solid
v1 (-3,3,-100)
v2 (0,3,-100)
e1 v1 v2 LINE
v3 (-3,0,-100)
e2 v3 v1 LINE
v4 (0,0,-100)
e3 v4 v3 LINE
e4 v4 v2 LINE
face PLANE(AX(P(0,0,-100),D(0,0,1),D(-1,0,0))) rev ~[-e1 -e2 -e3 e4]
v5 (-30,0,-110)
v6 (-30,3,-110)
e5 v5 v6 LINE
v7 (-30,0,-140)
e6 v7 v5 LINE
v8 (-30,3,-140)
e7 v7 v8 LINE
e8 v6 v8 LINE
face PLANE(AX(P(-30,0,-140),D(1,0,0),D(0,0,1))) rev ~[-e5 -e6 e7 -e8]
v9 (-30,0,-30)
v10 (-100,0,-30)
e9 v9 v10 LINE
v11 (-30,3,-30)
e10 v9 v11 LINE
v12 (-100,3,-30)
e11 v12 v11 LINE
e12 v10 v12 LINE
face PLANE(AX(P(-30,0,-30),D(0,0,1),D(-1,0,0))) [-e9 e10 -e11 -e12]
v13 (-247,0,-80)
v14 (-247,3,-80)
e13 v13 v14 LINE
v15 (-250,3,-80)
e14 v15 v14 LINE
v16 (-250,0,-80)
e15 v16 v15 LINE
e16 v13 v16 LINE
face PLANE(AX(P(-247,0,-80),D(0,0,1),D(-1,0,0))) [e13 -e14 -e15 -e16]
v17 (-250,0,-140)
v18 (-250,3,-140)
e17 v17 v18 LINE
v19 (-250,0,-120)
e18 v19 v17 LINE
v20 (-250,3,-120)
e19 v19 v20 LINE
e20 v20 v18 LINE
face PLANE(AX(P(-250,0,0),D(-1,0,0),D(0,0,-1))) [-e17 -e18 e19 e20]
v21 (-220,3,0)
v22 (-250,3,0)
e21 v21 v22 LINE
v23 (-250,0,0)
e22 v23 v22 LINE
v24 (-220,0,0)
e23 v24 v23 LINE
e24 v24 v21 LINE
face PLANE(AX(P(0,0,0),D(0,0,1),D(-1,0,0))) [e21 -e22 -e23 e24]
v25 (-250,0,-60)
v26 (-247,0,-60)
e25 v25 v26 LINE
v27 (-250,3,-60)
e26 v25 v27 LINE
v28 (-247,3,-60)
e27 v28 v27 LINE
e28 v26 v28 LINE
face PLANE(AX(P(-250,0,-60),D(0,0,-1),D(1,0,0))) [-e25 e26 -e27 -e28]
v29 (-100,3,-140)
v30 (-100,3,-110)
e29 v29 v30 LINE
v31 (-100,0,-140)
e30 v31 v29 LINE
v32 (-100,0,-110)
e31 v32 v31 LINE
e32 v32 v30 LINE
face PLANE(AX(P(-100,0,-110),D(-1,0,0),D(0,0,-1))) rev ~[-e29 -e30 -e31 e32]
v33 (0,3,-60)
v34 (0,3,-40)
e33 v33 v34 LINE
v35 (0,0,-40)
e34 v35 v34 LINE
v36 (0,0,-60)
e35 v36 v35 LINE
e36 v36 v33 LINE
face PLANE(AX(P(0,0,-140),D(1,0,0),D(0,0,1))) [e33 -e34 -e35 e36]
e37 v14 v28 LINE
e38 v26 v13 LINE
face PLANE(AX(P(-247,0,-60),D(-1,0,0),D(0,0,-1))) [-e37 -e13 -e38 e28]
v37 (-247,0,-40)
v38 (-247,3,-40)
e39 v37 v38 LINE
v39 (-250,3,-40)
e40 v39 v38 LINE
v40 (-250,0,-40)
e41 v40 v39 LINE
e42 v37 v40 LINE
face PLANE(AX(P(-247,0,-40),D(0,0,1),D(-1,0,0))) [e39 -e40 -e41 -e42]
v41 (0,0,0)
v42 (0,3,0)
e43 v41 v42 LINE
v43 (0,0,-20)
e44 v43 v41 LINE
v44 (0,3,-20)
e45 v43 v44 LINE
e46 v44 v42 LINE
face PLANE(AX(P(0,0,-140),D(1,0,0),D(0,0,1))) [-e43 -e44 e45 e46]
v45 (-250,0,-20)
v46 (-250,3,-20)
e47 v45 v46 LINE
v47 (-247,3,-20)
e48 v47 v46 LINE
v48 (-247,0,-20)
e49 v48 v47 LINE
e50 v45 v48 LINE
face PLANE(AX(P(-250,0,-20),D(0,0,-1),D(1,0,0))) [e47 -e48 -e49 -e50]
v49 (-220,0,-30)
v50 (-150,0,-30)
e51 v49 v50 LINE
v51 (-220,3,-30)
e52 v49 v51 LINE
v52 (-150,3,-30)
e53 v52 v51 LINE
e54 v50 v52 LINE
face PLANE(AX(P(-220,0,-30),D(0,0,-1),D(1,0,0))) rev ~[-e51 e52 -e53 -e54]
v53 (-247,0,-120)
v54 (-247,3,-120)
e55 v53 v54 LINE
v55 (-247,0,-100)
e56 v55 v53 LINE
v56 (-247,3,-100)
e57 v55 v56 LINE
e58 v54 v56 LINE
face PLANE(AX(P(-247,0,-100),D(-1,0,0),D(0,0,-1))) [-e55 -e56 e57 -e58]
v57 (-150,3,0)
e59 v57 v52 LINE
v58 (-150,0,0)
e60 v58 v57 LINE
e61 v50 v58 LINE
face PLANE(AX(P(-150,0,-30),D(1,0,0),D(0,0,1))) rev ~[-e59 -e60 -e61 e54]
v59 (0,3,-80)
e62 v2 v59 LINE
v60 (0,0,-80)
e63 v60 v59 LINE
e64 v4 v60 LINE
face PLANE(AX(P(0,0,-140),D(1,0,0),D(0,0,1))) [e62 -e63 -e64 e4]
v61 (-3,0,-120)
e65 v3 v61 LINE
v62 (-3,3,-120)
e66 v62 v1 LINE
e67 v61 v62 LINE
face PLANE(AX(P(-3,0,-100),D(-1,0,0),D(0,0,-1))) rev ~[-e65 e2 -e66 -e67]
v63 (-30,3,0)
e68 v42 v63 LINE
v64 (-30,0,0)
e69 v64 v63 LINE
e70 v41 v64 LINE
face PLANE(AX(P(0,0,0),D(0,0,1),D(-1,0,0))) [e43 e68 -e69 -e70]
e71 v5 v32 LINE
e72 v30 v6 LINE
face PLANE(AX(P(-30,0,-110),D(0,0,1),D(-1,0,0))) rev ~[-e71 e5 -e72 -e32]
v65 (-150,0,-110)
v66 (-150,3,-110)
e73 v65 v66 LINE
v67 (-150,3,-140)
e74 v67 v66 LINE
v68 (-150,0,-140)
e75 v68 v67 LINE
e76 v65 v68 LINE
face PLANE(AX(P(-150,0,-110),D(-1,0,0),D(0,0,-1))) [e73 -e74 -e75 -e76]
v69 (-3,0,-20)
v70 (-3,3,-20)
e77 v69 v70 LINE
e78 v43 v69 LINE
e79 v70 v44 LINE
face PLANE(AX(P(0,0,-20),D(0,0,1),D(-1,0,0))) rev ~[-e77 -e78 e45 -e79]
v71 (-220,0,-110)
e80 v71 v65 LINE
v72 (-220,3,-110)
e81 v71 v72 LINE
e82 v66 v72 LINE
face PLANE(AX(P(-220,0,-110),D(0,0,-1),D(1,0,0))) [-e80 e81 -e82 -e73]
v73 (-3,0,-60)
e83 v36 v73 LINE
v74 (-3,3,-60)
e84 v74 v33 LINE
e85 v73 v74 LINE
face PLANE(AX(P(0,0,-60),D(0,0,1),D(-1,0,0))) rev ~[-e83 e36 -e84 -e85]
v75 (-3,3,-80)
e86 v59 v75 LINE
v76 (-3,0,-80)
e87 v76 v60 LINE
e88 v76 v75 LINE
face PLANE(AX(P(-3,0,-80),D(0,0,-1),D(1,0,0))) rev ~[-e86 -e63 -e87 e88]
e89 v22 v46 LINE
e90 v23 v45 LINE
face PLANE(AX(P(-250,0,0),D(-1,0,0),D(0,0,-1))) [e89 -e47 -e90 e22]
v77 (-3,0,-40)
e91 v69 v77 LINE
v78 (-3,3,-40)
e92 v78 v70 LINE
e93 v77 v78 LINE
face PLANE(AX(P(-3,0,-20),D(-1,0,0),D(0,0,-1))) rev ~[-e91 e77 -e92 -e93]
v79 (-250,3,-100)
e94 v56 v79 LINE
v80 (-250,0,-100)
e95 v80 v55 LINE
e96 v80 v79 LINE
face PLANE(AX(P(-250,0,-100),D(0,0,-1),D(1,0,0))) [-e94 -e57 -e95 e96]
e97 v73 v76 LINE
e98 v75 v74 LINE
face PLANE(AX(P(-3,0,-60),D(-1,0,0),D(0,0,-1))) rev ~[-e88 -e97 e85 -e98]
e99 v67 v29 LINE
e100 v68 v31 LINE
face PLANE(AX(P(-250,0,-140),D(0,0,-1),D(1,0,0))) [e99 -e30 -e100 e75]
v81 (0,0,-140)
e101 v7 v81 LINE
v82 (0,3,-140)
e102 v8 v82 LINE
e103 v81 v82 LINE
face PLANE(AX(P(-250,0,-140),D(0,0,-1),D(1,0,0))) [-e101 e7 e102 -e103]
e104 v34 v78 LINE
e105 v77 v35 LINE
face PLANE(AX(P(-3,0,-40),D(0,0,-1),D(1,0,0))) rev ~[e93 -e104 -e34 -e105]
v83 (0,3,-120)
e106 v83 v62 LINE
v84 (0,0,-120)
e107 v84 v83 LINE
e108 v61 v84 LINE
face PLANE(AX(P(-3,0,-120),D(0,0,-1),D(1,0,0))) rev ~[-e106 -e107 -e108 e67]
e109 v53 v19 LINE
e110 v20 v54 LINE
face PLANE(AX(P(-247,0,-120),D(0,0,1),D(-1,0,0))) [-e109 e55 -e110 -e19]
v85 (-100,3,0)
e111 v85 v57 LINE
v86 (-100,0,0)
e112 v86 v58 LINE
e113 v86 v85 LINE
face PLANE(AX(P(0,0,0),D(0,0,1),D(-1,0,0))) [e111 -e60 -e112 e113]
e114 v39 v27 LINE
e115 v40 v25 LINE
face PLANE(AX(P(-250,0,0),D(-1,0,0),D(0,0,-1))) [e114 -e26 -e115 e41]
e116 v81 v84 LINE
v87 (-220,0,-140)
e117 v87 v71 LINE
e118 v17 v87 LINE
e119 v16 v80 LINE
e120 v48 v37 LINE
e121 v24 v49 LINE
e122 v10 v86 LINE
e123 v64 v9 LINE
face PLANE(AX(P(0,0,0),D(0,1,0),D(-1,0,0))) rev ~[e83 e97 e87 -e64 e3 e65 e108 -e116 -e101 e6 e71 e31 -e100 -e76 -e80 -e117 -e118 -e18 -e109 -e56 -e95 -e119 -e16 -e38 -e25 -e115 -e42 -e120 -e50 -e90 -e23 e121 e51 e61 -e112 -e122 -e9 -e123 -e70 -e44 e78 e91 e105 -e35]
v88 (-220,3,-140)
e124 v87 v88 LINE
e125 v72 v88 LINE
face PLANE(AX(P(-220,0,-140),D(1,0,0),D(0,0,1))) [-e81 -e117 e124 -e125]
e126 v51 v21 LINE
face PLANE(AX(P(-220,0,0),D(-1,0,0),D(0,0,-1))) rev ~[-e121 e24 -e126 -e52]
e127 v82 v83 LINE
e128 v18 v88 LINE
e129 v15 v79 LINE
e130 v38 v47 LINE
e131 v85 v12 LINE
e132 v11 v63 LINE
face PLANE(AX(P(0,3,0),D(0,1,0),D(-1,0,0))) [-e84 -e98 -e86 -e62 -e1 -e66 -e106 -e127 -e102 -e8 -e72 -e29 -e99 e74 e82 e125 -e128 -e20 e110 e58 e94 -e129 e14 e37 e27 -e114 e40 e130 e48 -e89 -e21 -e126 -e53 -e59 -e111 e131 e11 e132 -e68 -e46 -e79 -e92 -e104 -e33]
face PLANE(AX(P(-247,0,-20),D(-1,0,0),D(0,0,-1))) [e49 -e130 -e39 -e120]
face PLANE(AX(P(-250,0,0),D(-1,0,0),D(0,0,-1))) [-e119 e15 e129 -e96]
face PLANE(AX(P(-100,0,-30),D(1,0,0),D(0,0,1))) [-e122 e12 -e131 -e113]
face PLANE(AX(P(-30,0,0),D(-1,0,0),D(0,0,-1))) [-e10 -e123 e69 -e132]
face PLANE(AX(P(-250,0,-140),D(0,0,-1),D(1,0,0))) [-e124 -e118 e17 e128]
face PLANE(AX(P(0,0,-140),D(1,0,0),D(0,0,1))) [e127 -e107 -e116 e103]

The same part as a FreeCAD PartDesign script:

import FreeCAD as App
import Part
import Sketcher
from FreeCAD import Vector
Q = App.Units.Quantity


def add_polygon(sketch, points):
    """Adds a closed chain of lines whose ends are joined by coincident constraints."""
    first, n = sketch.GeometryCount, len(points)
    for a, b in zip(points, points[1:] + points[:1]):
        sketch.addGeometry(Part.LineSegment(App.Vector(*a, 0), App.Vector(*b, 0)), False)
    for i in range(n):
        sketch.addConstraint(Sketcher.Constraint("Coincident", first + i, 2, first + (i + 1) % n, 1))

doc = App.newDocument("Part")
body = doc.addObject("PartDesign::Body", "Body")

# Sketch on XZ plane
sketch1 = body.newObject("Sketcher::SketchObject", "Sketch")
sketch1.AttachmentSupport = (doc.getObject("XZ_Plane"), [""])
sketch1.MapMode = "FlatFace"
add_polygon(sketch1, [(-250, 0), (0, 0), (0, -140), (-250, -140)])  # lines 0-3
sketch1.addConstraint([
    Sketcher.Constraint("Horizontal", 0),
    Sketcher.Constraint("Vertical", 1),
    Sketcher.Constraint("Horizontal", 2),
    Sketcher.Constraint("Vertical", 3),
    Sketcher.Constraint("Coincident", 0, 2, -1, 1),
    Sketcher.Constraint("DistanceX", 0, 1, 0, 2, Q("250 mm")),
    Sketcher.Constraint("DistanceY", 1, 2, 1, 1, Q("140 mm")),
])
pad1 = body.newObject("PartDesign::Pad", "Pad")
pad1.Profile = sketch1
pad1.Length = 3
pad1.Reversed = True

# Sketch on XZ plane
sketch2 = body.newObject("Sketcher::SketchObject", "Sketch001")
sketch2.AttachmentSupport = (doc.getObject("XZ_Plane"), [""])
sketch2.MapMode = "FlatFace"
add_polygon(sketch2, [(-220, -140), (-150, -140), (-150, -110), (-220, -110)])  # lines 0-3
add_polygon(sketch2, [(-100, -140), (-30, -140), (-30, -110), (-100, -110)])  # lines 4-7
add_polygon(sketch2, [(-150, -30), (-150, 0), (-220, 0), (-220, -30)])  # lines 8-11
sketch2.addConstraint([
    Sketcher.Constraint("Horizontal", 0),
    Sketcher.Constraint("Vertical", 1),
    Sketcher.Constraint("Horizontal", 2),
    Sketcher.Constraint("Vertical", 3),
    Sketcher.Constraint("Horizontal", 4),
    Sketcher.Constraint("Vertical", 5),
    Sketcher.Constraint("Horizontal", 6),
    Sketcher.Constraint("Vertical", 7),
    Sketcher.Constraint("Vertical", 8),
    Sketcher.Constraint("Horizontal", 9),
    Sketcher.Constraint("Vertical", 10),
    Sketcher.Constraint("Horizontal", 11),
    Sketcher.Constraint("PointOnObject", 8, 2, -1),
    Sketcher.Constraint("Horizontal", 3, 2, 4, 2),
    Sketcher.Constraint("Horizontal", 2, 2, 5, 2),
    Sketcher.Constraint("Vertical", 1, 2, 8, 2),
    Sketcher.Constraint("Vertical", 3, 2, 9, 2),
    Sketcher.Constraint("Equal", 2, 4),
    Sketcher.Constraint("Equal", 7, 8),
    Sketcher.Constraint("DistanceX", 0, 1, 0, 2, Q("70 mm")),
    Sketcher.Constraint("DistanceY", 1, 1, 1, 2, Q("30 mm")),
    Sketcher.Constraint("DistanceX", 4, 2, -1, 1, Q("30 mm")),
    Sketcher.Constraint("DistanceX", 0, 2, -1, 1, Q("150 mm")),
    Sketcher.Constraint("DistanceY", 0, 2, -1, 1, Q("140 mm")),
])
pocket1 = body.newObject("PartDesign::Pocket", "Pocket")
pocket1.Profile = sketch2
pocket1.Length = 10

# Sketch on XZ plane
sketch3 = body.newObject("Sketcher::SketchObject", "Sketch002")
sketch3.AttachmentSupport = (doc.getObject("XZ_Plane"), [""])
sketch3.MapMode = "FlatFace"
add_polygon(sketch3, [(-30, -30), (-30, 0), (-100, 0), (-100, -30)])  # lines 0-3
sketch3.addConstraint([
    Sketcher.Constraint("Vertical", 0),
    Sketcher.Constraint("Horizontal", 1),
    Sketcher.Constraint("Vertical", 2),
    Sketcher.Constraint("Horizontal", 3),
    Sketcher.Constraint("PointOnObject", 0, 2, -1),
    Sketcher.Constraint("DistanceX", 1, 2, 1, 1, Q("70 mm")),
    Sketcher.Constraint("DistanceY", 0, 1, 0, 2, Q("30 mm")),
    Sketcher.Constraint("DistanceX", 0, 2, -1, 1, Q("30 mm")),
])
pocket2 = body.newObject("PartDesign::Pocket", "Pocket001")
pocket2.Profile = sketch3
pocket2.Length = 10

# Sketch on XZ plane
sketch4 = body.newObject("Sketcher::SketchObject", "Sketch003")
sketch4.AttachmentSupport = (doc.getObject("XZ_Plane"), [""])
sketch4.MapMode = "FlatFace"
add_polygon(sketch4, [(0, -120), (0, -100), (-3, -100), (-3, -120)])  # lines 0-3
add_polygon(sketch4, [(0, -80), (0, -60), (-3, -60), (-3, -80)])  # lines 4-7
add_polygon(sketch4, [(0, -40), (0, -20), (-3, -20), (-3, -40)])  # lines 8-11
add_polygon(sketch4, [(-250, -20), (-250, -40), (-247, -40), (-247, -20)])  # lines 12-15
add_polygon(sketch4, [(-250, -60), (-250, -80), (-247, -80), (-247, -60)])  # lines 16-19
add_polygon(sketch4, [(-250, -100), (-250, -120), (-247, -120), (-247, -100)])  # lines 20-23
sketch4.addConstraint([
    Sketcher.Constraint("Vertical", 0),
    Sketcher.Constraint("Horizontal", 1),
    Sketcher.Constraint("Vertical", 2),
    Sketcher.Constraint("Horizontal", 3),
    Sketcher.Constraint("Vertical", 4),
    Sketcher.Constraint("Horizontal", 5),
    Sketcher.Constraint("Vertical", 6),
    Sketcher.Constraint("Horizontal", 7),
    Sketcher.Constraint("Vertical", 8),
    Sketcher.Constraint("Horizontal", 9),
    Sketcher.Constraint("Vertical", 10),
    Sketcher.Constraint("Horizontal", 11),
    Sketcher.Constraint("Vertical", 12),
    Sketcher.Constraint("Horizontal", 13),
    Sketcher.Constraint("Vertical", 14),
    Sketcher.Constraint("Horizontal", 15),
    Sketcher.Constraint("Vertical", 16),
    Sketcher.Constraint("Horizontal", 17),
    Sketcher.Constraint("Vertical", 18),
    Sketcher.Constraint("Horizontal", 19),
    Sketcher.Constraint("Vertical", 20),
    Sketcher.Constraint("Horizontal", 21),
    Sketcher.Constraint("Vertical", 22),
    Sketcher.Constraint("Horizontal", 23),
    Sketcher.Constraint("PointOnObject", 0, 2, -2),
    Sketcher.Constraint("PointOnObject", 4, 2, -2),
    Sketcher.Constraint("PointOnObject", 8, 2, -2),
    Sketcher.Constraint("Horizontal", 11, 2, 12, 2),
    Sketcher.Constraint("Horizontal", 9, 2, 14, 2),
    Sketcher.Constraint("Horizontal", 7, 2, 16, 2),
    Sketcher.Constraint("Horizontal", 5, 2, 18, 2),
    Sketcher.Constraint("Horizontal", 3, 2, 20, 2),
    Sketcher.Constraint("Horizontal", 1, 2, 22, 2),
    Sketcher.Constraint("Vertical", 2, 2, 5, 2),
    Sketcher.Constraint("Vertical", 6, 2, 9, 2),
    Sketcher.Constraint("Vertical", 15, 2, 16, 2),
    Sketcher.Constraint("Vertical", 14, 2, 17, 2),
    Sketcher.Constraint("Vertical", 19, 2, 20, 2),
    Sketcher.Constraint("Vertical", 18, 2, 21, 2),
    Sketcher.Constraint("Equal", 11, 13),
    Sketcher.Constraint("Equal", 2, 4),
    Sketcher.Constraint("Equal", 6, 8),
    Sketcher.Constraint("DistanceX", 1, 2, 1, 1, Q("3 mm")),
    Sketcher.Constraint("DistanceY", 0, 1, 0, 2, Q("20 mm")),
    Sketcher.Constraint("DistanceY", 8, 2, -1, 1, Q("20 mm")),
    Sketcher.Constraint("DistanceY", 1, 2, 6, 2, Q("20 mm")),
    Sketcher.Constraint("DistanceY", 5, 2, 10, 2, Q("20 mm")),
    Sketcher.Constraint("DistanceX", 12, 2, -1, 1, Q("250 mm")),
])
pocket3 = body.newObject("PartDesign::Pocket", "Pocket002")
pocket3.Profile = sketch4
pocket3.Length = 10

doc.recompute()
